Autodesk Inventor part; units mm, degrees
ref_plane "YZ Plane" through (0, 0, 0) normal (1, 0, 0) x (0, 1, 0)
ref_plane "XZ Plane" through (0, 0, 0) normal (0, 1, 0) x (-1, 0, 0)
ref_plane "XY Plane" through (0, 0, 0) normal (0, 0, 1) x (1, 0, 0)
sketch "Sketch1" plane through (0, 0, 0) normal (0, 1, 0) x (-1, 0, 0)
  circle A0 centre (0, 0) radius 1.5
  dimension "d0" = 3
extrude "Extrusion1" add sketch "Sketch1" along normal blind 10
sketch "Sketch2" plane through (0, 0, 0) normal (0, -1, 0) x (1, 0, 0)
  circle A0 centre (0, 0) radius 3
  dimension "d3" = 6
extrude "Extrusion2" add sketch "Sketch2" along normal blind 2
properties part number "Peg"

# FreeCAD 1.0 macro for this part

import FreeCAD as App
import Part
import Sketcher
from FreeCAD import Vector

doc = App.newDocument("Part")
body = doc.addObject("PartDesign::Body", "Body")

# Sketch on XZ plane
sketch1 = body.newObject("Sketcher::SketchObject", "Sketch")
sketch1.AttachmentSupport = (doc.getObject("XZ_Plane"), [""])
sketch1.MapMode = "FlatFace"
sketch1.addGeometry(Part.Circle(Vector(0, 0, 0), Vector(0, 0, 1), 1.5), False)
sketch1.addConstraint(Sketcher.Constraint("Coincident", 0, 3, -1, 1))
sketch1.addConstraint(Sketcher.Constraint("Diameter", 0, 3.0))
pad1 = body.newObject("PartDesign::Pad", "Pad")
pad1.Profile = sketch1
pad1.Length = 10
pad1.Reversed = True

# Sketch on XZ plane
sketch2 = body.newObject("Sketcher::SketchObject", "Sketch001")
sketch2.AttachmentSupport = (doc.getObject("XZ_Plane"), [""])
sketch2.MapMode = "FlatFace"
sketch2.addGeometry(Part.Circle(Vector(0, 0, 0), Vector(0, 0, 1), 3), False)
sketch2.addConstraint(Sketcher.Constraint("Coincident", 0, 3, -1, 1))
sketch2.addConstraint(Sketcher.Constraint("Diameter", 0, 6.0))
pad2 = body.newObject("PartDesign::Pad", "Pad001")
pad2.Profile = sketch2
pad2.Length = 2

doc.recompute()
